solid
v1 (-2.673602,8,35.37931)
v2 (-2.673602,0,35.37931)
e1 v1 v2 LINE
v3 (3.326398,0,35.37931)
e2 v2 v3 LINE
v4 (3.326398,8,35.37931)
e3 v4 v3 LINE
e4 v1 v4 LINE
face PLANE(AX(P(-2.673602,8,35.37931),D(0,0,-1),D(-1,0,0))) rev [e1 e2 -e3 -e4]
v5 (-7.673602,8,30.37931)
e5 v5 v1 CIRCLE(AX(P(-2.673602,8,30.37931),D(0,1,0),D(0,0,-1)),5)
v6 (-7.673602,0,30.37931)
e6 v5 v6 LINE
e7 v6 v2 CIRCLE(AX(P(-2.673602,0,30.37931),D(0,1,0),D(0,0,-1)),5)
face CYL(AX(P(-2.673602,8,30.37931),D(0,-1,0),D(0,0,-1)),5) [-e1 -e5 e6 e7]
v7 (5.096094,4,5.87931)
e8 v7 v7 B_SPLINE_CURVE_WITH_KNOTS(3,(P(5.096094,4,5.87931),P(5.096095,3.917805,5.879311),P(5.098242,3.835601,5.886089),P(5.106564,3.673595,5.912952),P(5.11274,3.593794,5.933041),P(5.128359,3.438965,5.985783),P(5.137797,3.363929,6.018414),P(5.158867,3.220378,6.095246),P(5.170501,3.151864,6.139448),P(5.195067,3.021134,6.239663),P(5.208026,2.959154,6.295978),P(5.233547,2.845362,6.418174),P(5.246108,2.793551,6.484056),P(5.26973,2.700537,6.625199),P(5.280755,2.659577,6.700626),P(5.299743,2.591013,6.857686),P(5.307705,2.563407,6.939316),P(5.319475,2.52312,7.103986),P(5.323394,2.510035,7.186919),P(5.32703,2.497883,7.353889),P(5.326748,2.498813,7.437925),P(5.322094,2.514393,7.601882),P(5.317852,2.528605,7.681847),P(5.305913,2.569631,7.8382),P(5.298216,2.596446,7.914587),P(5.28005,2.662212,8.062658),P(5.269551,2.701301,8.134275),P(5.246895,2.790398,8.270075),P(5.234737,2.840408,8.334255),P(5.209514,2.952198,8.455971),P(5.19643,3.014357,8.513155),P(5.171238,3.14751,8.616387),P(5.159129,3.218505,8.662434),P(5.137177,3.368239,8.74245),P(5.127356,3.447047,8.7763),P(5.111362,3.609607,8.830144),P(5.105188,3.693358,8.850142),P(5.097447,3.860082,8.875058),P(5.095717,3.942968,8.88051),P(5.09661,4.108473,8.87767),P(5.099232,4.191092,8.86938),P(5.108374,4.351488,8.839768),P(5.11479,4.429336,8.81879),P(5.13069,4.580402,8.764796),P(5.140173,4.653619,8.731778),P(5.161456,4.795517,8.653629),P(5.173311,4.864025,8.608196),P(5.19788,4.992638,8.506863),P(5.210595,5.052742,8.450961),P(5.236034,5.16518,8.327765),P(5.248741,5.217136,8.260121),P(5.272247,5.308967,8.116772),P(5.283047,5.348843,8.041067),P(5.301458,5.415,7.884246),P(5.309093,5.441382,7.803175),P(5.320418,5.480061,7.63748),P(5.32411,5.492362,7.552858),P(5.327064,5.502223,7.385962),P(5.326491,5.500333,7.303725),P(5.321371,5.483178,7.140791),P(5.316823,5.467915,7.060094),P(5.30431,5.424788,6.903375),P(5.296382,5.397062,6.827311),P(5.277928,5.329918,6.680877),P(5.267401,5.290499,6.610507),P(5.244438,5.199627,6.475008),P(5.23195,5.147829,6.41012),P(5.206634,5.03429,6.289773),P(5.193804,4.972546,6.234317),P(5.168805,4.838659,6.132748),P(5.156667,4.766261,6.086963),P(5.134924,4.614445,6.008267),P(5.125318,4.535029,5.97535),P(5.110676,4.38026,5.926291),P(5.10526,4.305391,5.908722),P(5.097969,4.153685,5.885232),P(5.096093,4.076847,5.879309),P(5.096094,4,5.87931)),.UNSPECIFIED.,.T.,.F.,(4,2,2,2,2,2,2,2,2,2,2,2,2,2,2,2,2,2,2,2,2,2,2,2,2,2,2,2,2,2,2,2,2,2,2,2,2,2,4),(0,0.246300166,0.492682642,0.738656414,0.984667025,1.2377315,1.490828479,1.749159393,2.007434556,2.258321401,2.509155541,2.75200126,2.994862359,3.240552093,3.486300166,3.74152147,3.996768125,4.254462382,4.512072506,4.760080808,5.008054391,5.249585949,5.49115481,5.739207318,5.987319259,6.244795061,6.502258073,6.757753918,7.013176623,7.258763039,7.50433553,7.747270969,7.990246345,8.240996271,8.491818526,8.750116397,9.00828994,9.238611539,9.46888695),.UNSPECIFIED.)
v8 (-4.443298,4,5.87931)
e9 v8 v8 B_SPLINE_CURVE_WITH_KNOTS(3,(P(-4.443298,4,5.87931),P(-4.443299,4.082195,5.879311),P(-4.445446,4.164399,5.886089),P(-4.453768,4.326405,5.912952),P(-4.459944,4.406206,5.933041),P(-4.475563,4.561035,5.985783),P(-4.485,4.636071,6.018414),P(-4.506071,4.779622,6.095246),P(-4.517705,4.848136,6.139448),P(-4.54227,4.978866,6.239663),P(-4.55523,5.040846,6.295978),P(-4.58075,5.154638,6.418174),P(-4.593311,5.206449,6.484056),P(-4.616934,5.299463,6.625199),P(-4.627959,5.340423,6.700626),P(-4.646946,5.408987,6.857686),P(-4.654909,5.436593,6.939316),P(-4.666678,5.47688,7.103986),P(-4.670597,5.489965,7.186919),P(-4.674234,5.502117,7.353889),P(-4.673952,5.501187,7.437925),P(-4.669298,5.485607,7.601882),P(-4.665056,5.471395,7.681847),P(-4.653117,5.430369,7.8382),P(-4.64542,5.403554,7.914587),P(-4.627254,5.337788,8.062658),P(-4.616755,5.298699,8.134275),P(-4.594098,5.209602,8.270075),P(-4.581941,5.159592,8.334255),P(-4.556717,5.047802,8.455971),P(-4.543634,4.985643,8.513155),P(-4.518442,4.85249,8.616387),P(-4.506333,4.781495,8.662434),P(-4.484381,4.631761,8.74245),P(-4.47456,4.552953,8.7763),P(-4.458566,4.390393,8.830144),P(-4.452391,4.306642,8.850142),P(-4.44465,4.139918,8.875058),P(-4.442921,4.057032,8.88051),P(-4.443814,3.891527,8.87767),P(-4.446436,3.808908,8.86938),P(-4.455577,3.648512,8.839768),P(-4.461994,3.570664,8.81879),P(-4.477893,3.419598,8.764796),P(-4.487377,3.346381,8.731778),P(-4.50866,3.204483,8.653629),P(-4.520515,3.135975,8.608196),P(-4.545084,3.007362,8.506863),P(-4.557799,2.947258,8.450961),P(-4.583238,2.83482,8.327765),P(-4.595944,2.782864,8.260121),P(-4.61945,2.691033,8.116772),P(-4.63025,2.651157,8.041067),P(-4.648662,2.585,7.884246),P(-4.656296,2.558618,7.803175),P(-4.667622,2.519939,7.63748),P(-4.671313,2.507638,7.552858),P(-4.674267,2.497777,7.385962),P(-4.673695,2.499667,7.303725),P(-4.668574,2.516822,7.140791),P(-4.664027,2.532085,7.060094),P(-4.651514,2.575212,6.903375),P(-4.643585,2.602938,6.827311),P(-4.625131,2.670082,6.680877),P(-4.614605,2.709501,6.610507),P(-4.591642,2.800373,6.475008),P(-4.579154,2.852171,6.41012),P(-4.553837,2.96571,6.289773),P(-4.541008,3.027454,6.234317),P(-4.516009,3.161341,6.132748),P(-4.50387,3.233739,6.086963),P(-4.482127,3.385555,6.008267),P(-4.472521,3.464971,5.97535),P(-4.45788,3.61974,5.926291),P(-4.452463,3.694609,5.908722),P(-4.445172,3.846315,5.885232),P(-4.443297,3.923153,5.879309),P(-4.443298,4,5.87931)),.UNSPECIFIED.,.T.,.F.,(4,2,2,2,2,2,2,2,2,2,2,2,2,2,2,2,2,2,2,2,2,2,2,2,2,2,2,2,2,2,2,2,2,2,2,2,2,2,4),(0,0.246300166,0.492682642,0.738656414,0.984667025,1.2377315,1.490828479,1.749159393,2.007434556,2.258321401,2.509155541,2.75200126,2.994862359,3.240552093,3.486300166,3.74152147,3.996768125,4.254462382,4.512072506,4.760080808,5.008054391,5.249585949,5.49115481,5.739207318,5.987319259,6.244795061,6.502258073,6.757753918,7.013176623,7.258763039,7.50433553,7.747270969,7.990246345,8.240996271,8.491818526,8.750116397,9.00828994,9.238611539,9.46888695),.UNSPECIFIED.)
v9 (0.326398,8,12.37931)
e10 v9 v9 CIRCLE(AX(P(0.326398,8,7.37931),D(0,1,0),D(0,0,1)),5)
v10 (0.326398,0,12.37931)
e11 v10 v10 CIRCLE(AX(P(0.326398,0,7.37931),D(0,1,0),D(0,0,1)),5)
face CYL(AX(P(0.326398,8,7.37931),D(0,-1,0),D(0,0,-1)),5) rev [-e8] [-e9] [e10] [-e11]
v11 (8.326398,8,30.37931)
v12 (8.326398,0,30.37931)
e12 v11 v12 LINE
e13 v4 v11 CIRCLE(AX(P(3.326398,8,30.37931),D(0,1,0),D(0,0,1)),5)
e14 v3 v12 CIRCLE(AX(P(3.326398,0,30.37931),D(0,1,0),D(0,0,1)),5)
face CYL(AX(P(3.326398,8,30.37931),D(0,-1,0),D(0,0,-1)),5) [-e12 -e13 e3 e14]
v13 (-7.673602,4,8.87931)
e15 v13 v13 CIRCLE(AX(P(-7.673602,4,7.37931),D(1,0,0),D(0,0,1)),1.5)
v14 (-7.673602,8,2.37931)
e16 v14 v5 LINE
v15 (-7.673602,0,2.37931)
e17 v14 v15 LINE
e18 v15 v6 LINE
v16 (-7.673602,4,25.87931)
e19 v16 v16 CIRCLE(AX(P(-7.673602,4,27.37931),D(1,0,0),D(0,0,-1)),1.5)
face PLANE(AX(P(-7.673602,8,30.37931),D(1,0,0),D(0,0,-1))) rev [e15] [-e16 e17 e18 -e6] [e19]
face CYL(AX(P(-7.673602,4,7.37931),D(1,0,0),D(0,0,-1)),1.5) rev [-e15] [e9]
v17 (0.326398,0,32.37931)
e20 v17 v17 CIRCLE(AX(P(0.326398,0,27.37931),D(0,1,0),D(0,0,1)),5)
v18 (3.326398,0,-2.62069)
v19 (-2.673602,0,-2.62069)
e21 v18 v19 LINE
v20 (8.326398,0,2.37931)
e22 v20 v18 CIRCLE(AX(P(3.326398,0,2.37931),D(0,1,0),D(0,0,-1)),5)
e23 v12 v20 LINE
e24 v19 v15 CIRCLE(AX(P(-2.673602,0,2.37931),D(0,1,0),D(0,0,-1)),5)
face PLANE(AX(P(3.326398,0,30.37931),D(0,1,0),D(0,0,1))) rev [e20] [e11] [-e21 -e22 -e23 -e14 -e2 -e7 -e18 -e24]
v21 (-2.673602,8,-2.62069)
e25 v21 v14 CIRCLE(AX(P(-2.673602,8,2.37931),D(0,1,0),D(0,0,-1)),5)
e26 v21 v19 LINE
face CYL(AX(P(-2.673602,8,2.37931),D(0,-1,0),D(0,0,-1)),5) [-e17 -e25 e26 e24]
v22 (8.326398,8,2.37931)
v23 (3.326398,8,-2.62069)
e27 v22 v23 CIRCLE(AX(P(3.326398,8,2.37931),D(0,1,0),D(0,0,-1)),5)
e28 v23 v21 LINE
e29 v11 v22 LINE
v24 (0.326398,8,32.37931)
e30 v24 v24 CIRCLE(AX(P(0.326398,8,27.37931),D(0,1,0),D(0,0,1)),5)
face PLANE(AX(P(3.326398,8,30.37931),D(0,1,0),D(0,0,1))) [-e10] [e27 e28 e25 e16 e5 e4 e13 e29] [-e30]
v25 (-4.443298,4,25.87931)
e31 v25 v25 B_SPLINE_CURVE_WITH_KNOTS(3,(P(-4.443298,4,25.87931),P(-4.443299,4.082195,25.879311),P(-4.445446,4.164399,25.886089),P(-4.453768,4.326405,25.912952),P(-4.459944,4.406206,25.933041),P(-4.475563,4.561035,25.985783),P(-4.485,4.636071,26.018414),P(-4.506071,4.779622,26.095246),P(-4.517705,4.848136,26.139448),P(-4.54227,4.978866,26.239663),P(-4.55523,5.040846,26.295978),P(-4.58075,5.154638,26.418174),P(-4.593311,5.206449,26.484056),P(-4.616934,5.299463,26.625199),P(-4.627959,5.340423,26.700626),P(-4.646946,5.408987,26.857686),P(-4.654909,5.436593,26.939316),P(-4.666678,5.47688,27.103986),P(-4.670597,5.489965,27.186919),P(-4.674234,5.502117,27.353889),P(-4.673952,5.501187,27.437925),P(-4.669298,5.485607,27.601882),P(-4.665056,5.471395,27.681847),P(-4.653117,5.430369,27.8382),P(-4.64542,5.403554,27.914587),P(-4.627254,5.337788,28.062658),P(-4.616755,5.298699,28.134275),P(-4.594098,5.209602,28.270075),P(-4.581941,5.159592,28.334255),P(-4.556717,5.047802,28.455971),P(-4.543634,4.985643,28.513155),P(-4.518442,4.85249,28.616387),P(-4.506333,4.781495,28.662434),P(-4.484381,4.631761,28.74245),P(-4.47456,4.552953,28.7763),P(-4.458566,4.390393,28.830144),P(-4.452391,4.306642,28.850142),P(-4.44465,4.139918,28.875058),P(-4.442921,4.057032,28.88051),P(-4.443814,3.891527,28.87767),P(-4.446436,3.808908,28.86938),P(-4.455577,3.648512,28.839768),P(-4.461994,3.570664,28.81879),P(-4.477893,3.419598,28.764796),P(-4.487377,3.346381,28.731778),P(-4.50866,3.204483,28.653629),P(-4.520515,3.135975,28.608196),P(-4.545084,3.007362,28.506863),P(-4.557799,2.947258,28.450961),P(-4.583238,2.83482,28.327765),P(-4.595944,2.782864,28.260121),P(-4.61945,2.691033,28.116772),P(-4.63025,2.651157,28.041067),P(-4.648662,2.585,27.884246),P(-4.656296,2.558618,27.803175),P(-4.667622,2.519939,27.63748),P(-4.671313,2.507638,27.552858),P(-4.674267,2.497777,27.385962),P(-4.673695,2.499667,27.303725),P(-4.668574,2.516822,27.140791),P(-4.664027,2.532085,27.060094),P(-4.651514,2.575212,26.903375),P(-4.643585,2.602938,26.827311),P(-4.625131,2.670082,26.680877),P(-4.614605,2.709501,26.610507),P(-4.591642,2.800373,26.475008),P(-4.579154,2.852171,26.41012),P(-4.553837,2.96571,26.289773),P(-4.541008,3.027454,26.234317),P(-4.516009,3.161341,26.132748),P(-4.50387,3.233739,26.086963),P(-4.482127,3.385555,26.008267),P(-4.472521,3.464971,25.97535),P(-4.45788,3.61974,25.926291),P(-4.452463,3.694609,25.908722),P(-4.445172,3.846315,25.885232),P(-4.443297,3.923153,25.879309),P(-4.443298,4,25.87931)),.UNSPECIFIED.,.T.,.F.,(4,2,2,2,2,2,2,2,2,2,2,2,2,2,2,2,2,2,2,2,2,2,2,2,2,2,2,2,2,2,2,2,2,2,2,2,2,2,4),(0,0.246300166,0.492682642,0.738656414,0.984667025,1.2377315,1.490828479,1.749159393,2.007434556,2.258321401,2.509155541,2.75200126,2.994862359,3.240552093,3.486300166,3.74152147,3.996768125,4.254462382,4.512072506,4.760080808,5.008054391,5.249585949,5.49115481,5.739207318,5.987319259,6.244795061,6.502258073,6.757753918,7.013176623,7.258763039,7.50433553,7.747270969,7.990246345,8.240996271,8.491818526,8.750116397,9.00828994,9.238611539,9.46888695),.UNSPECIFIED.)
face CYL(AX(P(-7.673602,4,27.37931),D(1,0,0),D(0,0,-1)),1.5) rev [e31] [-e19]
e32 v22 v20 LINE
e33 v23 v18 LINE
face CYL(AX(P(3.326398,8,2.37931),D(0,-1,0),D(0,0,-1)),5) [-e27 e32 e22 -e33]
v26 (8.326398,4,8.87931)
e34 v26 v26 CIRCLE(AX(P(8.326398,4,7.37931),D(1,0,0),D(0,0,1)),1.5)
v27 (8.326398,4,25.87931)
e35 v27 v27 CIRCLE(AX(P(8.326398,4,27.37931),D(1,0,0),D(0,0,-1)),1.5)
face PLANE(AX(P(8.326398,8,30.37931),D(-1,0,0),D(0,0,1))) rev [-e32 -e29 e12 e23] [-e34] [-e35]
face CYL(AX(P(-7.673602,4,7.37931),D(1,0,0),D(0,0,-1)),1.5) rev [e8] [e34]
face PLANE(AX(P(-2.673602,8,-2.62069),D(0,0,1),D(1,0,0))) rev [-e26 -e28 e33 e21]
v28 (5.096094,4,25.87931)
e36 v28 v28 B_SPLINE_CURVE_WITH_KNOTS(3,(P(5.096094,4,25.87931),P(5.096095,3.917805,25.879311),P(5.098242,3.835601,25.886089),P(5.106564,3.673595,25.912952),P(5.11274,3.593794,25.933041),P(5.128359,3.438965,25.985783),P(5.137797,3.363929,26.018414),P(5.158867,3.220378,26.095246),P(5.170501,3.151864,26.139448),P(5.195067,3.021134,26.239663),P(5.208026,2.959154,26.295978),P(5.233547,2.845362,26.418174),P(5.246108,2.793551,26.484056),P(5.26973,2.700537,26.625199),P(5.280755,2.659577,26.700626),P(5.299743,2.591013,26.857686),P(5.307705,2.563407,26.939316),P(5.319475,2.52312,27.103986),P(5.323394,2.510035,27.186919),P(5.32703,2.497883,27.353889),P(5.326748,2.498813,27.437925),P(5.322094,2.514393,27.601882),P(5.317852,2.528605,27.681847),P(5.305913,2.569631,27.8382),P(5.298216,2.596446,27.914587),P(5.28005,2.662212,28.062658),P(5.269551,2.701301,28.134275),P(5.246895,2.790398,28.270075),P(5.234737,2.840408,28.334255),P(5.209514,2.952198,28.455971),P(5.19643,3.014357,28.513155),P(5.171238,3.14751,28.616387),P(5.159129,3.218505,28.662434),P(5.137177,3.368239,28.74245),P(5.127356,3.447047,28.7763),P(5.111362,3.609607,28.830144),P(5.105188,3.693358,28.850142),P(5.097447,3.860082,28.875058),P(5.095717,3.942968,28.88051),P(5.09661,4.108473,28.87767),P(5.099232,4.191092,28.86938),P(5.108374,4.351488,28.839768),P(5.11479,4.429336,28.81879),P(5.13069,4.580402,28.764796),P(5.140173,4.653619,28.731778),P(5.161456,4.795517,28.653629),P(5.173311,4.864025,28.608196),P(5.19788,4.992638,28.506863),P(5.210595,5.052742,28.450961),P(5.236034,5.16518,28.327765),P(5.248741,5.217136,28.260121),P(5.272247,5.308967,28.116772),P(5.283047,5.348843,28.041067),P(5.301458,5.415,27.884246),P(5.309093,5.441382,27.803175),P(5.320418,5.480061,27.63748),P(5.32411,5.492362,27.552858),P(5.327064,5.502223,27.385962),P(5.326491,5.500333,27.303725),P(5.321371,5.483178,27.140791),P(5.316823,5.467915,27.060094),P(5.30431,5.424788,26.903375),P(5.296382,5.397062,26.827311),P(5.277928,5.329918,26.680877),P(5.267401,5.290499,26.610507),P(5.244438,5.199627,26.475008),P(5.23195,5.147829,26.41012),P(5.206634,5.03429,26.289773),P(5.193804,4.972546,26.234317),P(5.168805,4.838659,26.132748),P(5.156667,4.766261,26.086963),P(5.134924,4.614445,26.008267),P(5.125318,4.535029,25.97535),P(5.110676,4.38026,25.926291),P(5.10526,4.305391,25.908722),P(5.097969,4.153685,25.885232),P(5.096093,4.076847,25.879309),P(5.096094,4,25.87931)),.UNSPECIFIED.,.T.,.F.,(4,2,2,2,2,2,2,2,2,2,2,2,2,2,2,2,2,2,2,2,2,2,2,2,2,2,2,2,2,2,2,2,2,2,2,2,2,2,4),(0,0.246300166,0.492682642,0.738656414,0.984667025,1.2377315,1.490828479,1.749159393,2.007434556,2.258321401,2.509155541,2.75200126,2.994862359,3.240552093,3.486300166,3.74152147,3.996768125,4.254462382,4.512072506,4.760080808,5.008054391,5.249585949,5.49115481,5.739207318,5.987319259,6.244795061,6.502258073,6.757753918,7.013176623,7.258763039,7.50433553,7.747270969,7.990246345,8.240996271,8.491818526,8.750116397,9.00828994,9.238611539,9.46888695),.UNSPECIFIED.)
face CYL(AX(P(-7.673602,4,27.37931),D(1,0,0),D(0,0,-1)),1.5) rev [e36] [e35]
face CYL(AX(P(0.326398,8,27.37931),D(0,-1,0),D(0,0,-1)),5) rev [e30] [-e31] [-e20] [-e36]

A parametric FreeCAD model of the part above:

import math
import FreeCAD as App
import Part
import Sketcher
Q = App.Units.Quantity

doc = App.newDocument("Part")
params = doc.addObject("Spreadsheet::Sheet", "Params")
for row, (alias, value) in enumerate([
    ("sketch1_diameter", "10 mm"),
    ("sketch1_width", "6 mm"),
    ("sketch1_height", "28 mm"),
    ("pad1_length", "8 mm"),
    ("sketch2_diameter", "3 mm"),
], start=1):
    params.set(f"A{row}", alias)
    params.set(f"B{row}", "=" + value)
    params.setAlias(f"B{row}", alias)

body = doc.addObject("PartDesign::Body", "Body")

# Sketch on XZ plane
sketch1 = doc.addObject("Sketcher::SketchObject", "Sketch")
body.addObject(sketch1)
sketch1.AttachmentSupport = (doc.XZ_Plane, [""])
sketch1.MapMode = "FlatFace"
sketch1.addGeometry([
    Part.LineSegment(App.Vector(-3, 35, 0), App.Vector(3, 35, 0)),  # 0
    Part.ArcOfCircle(Part.Circle(App.Vector(3, 30, 0), App.Vector(0, 0, 1), 5), math.radians(0), math.radians(90)),  # 1
    Part.LineSegment(App.Vector(8, 30, 0), App.Vector(8, 2, 0)),  # 2
    Part.ArcOfCircle(Part.Circle(App.Vector(3, 2, 0), App.Vector(0, 0, 1), 5), math.radians(-90), math.radians(0)),  # 3
    Part.LineSegment(App.Vector(3, -3, 0), App.Vector(-3, -3, 0)),  # 4
    Part.ArcOfCircle(Part.Circle(App.Vector(-3, 2, 0), App.Vector(0, 0, 1), 5), math.radians(-180), math.radians(-90)),  # 5
    Part.LineSegment(App.Vector(-8, 2, 0), App.Vector(-8, 30, 0)),  # 6
    Part.ArcOfCircle(Part.Circle(App.Vector(-3, 30, 0), App.Vector(0, 0, 1), 5), math.radians(90), math.radians(180)),  # 7
    Part.Circle(App.Vector(0, 27, 0), App.Vector(0, 0, 1), 5),  # 8
    Part.Circle(App.Vector(0, 7, 0), App.Vector(0, 0, 1), 5),  # 9
], False)
sketch1.addConstraint([
    Sketcher.Constraint("Tangent", 0, 2, 1, 2),
    Sketcher.Constraint("Tangent", 1, 1, 2, 1),
    Sketcher.Constraint("Tangent", 2, 2, 3, 2),
    Sketcher.Constraint("Tangent", 3, 1, 4, 1),
    Sketcher.Constraint("Tangent", 4, 2, 5, 2),
    Sketcher.Constraint("Tangent", 5, 1, 6, 1),
    Sketcher.Constraint("Tangent", 6, 2, 7, 2),
    Sketcher.Constraint("Tangent", 7, 1, 0, 1),
    Sketcher.Constraint("Horizontal", 0),
    Sketcher.Constraint("Vertical", 2),
    Sketcher.Constraint("Horizontal", 4),
    Sketcher.Constraint("Vertical", 6),
    Sketcher.Constraint("Equal", 1, 3),
    Sketcher.Constraint("Equal", 3, 5),
    Sketcher.Constraint("Equal", 5, 7),
    Sketcher.Constraint("Equal", 7, 8),
    Sketcher.Constraint("Equal", 8, 9),
    Sketcher.Constraint("Vertical", 8, 3, 9, 3),
    Sketcher.Constraint("Diameter", 8, Q("10 mm")),
    Sketcher.Constraint("DistanceX", 0, 1, 0, 2, Q("6 mm")),
    Sketcher.Constraint("DistanceY", 2, 2, 2, 1, Q("28 mm")),
    Sketcher.Constraint("DistanceX", 7, 3, 8, 3, Q("3 mm")),
    Sketcher.Constraint("DistanceY", 8, 3, 7, 3, Q("3 mm")),
    Sketcher.Constraint("DistanceY", 5, 3, 9, 3, Q("5 mm")),
    Sketcher.Constraint("DistanceX", -1, 1, 1, 3, Q("3.326398 mm")),
    Sketcher.Constraint("DistanceY", -1, 1, 1, 3, Q("30.37931 mm")),
])
sketch1.setExpression("Constraints[18]", "Params.sketch1_diameter")
sketch1.setExpression("Constraints[19]", "Params.sketch1_width")
sketch1.setExpression("Constraints[20]", "Params.sketch1_height")
pad1 = doc.addObject("PartDesign::Pad", "Pad")
body.addObject(pad1)
pad1.Profile = sketch1
pad1.setExpression("Length", "Params.pad1_length")
pad1.Reversed = True

# Sketch on YZ plane
sketch2 = doc.addObject("Sketcher::SketchObject", "Sketch001")
body.addObject(sketch2)
sketch2.AttachmentSupport = (doc.YZ_Plane, [""])
sketch2.MapMode = "FlatFace"
sketch2.AttachmentOffset = App.Placement(App.Vector(0, 0, 8.326398), App.Rotation())
sketch2.addGeometry([
    Part.Circle(App.Vector(4, 27.4, 0), App.Vector(0, 0, 1), 1.5),
    Part.Circle(App.Vector(4, 7.4, 0), App.Vector(0, 0, 1), 1.5),
], False)
sketch2.addConstraint([
    Sketcher.Constraint("Equal", 0, 1),
    Sketcher.Constraint("Vertical", 0, 3, 1, 3),
    Sketcher.Constraint("Diameter", 0, Q("3 mm")),
    Sketcher.Constraint("DistanceX", -1, 1, 0, 3, Q("4 mm")),
    Sketcher.Constraint("DistanceY", 1, 3, 0, 3, Q("20 mm")),
    Sketcher.Constraint("DistanceY", -1, 1, 0, 3, Q("27.37931 mm")),
])
sketch2.setExpression("Constraints[2]", "Params.sketch2_diameter")
pocket1 = doc.addObject("PartDesign::Pocket", "Pocket")
body.addObject(pocket1)
pocket1.Profile = sketch2
pocket1.Type = "ThroughAll"

doc.recompute()
